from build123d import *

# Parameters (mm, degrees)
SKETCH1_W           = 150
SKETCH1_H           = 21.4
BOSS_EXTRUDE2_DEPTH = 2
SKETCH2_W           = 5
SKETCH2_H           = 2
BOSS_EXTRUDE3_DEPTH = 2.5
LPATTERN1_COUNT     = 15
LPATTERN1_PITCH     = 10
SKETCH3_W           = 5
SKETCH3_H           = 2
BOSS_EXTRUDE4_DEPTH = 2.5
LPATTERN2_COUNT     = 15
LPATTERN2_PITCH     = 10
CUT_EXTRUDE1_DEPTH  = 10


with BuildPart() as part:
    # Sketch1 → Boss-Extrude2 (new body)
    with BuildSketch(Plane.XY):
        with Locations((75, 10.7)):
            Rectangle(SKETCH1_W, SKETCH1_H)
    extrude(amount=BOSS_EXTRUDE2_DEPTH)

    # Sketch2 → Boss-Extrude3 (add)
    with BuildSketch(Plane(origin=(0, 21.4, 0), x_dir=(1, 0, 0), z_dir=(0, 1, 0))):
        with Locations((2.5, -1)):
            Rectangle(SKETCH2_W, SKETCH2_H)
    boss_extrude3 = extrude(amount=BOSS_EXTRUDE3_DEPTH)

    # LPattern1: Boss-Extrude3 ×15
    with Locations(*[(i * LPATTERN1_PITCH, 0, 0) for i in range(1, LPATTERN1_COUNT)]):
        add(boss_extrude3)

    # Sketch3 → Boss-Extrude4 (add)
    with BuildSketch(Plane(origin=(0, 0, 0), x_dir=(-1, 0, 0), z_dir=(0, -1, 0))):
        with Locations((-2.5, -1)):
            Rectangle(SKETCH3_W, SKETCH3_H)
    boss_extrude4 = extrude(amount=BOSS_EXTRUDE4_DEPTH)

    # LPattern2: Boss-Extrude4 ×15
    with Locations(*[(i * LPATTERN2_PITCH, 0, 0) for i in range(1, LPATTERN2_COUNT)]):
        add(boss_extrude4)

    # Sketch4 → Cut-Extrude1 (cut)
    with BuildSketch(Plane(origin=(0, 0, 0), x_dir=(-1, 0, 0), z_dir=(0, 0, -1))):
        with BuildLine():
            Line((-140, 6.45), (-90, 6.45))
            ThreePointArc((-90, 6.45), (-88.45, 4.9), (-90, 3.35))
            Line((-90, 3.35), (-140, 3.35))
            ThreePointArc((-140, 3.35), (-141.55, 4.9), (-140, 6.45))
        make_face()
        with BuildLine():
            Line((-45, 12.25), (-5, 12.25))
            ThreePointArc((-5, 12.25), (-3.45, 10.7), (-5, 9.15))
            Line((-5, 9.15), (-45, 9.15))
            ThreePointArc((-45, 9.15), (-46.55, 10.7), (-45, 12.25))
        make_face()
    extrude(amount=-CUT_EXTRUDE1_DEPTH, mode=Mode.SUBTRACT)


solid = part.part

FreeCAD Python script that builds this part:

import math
import FreeCAD as App
import Part
import Sketcher
Q = App.Units.Quantity


def add_polygon(sketch, points):
    """Adds a closed chain of lines whose ends are joined by coincident constraints."""
    first, n = sketch.GeometryCount, len(points)
    for a, b in zip(points, points[1:] + points[:1]):
        sketch.addGeometry(Part.LineSegment(App.Vector(*a, 0), App.Vector(*b, 0)), False)
    for i in range(n):
        sketch.addConstraint(Sketcher.Constraint("Coincident", first + i, 2, first + (i + 1) % n, 1))

doc = App.newDocument("Part")
params = doc.addObject("Spreadsheet::Sheet", "Params")
for row, (alias, value) in enumerate([
    ("sketch1_width", "150 mm"),
    ("sketch1_height", "21.4 mm"),
    ("pad1_length", "2 mm"),
    ("sketch2_width", "5 mm"),
    ("sketch2_height", "2 mm"),
    ("pad2_length", "2.5 mm"),
    ("linearpattern_pitch", "10 mm"),
    ("sketch3_width", "5 mm"),
    ("sketch3_height", "2 mm"),
    ("pad3_length", "2.5 mm"),
    ("linearpattern2_pitch", "10 mm"),
    ("sketch4_width", "50 mm"),
    ("sketch4_width2", "40 mm"),
    ("sketch4_radius", "1.55 mm"),
    ("pocket1_length", "10 mm"),
], start=1):
    params.set(f"A{row}", alias)
    params.set(f"B{row}", "=" + value)
    params.setAlias(f"B{row}", alias)

body = doc.addObject("PartDesign::Body", "Body")

# Sketch on XY plane
sketch1 = body.newObject("Sketcher::SketchObject", "Sketch")
sketch1.AttachmentSupport = (doc.getObject("XY_Plane"), [""])
sketch1.MapMode = "FlatFace"
add_polygon(sketch1, [(0, 21), (0, 0), (150, 0), (150, 21)])  # lines 0-3
sketch1.addConstraint([
    Sketcher.Constraint("Vertical", 0),
    Sketcher.Constraint("Horizontal", 1),
    Sketcher.Constraint("Vertical", 2),
    Sketcher.Constraint("Horizontal", 3),
    Sketcher.Constraint("Coincident", 0, 2, -1, 1),
    Sketcher.Constraint("DistanceX", 1, 1, 1, 2, Q("150 mm")),
    Sketcher.Constraint("DistanceY", 0, 2, 0, 1, Q("21.4 mm")),
])
sketch1.setExpression("Constraints[9]", "Params.sketch1_width")
sketch1.setExpression("Constraints[10]", "Params.sketch1_height")
pad1 = body.newObject("PartDesign::Pad", "Pad")
pad1.Profile = sketch1
pad1.setExpression("Length", "Params.pad1_length")

# Sketch on XZ plane
sketch2 = body.newObject("Sketcher::SketchObject", "Sketch001")
sketch2.AttachmentSupport = (doc.getObject("XZ_Plane"), [""])
sketch2.MapMode = "FlatFace"
sketch2.AttachmentOffset = App.Placement(App.Vector(0, 0, -21.4), App.Rotation())
add_polygon(sketch2, [(0, 0), (0, 2), (5, 2), (5, 0)])  # lines 0-3
sketch2.addConstraint([
    Sketcher.Constraint("Vertical", 0),
    Sketcher.Constraint("Horizontal", 1),
    Sketcher.Constraint("Vertical", 2),
    Sketcher.Constraint("Horizontal", 3),
    Sketcher.Constraint("Coincident", 3, 2, -1, 1),
    Sketcher.Constraint("DistanceX", 1, 1, 1, 2, Q("5 mm")),
    Sketcher.Constraint("DistanceY", 0, 1, 0, 2, Q("2 mm")),
])
sketch2.setExpression("Constraints[9]", "Params.sketch2_width")
sketch2.setExpression("Constraints[10]", "Params.sketch2_height")
pad2 = body.newObject("PartDesign::Pad", "Pad001")
pad2.Profile = sketch2
pad2.setExpression("Length", "Params.pad2_length")
pad2.Reversed = True
doc.recompute()

linearpattern = body.newObject("PartDesign::LinearPattern", "LinearPattern")
linearpattern.Originals = [pad2]
linearpattern.Direction = (doc.getObject("X_Axis"), [""])
linearpattern.Mode = "offset"
linearpattern.setExpression("Offset", "Params.linearpattern_pitch")
linearpattern.Occurrences = 15
body.Tip = linearpattern

# Sketch on XZ plane
sketch3 = body.newObject("Sketcher::SketchObject", "Sketch002")
sketch3.AttachmentSupport = (doc.getObject("XZ_Plane"), [""])
sketch3.MapMode = "FlatFace"
add_polygon(sketch3, [(5, 0), (5, 2), (0, 2), (0, 0)])  # lines 0-3
sketch3.addConstraint([
    Sketcher.Constraint("Vertical", 0),
    Sketcher.Constraint("Horizontal", 1),
    Sketcher.Constraint("Vertical", 2),
    Sketcher.Constraint("Horizontal", 3),
    Sketcher.Constraint("Coincident", 2, 2, -1, 1),
    Sketcher.Constraint("DistanceX", 1, 2, 1, 1, Q("5 mm")),
    Sketcher.Constraint("DistanceY", 0, 1, 0, 2, Q("2 mm")),
])
sketch3.setExpression("Constraints[9]", "Params.sketch3_width")
sketch3.setExpression("Constraints[10]", "Params.sketch3_height")
pad3 = body.newObject("PartDesign::Pad", "Pad002")
pad3.Profile = sketch3
pad3.setExpression("Length", "Params.pad3_length")
doc.recompute()

linearpattern2 = body.newObject("PartDesign::LinearPattern", "LinearPattern001")
linearpattern2.Originals = [pad3]
linearpattern2.Direction = (doc.getObject("X_Axis"), [""])
linearpattern2.Mode = "offset"
linearpattern2.setExpression("Offset", "Params.linearpattern2_pitch")
linearpattern2.Occurrences = 15
body.Tip = linearpattern2

# Sketch on XY plane
sketch4 = body.newObject("Sketcher::SketchObject", "Sketch003")
sketch4.AttachmentSupport = (doc.getObject("XY_Plane"), [""])
sketch4.MapMode = "FlatFace"
sketch4.addGeometry([
    Part.LineSegment(App.Vector(90, 6.5, 0), App.Vector(140, 6.5, 0)),  # 0
    Part.ArcOfCircle(Part.Circle(App.Vector(140, 4.9, 0), App.Vector(0, 0, 1), 1.6), math.radians(-90), math.radians(90)),  # 1
    Part.LineSegment(App.Vector(140, 3.4, 0), App.Vector(90, 3.4, 0)),  # 2
    Part.ArcOfCircle(Part.Circle(App.Vector(90, 4.9, 0), App.Vector(0, 0, 1), 1.6), math.radians(90), math.radians(270)),  # 3
    Part.LineSegment(App.Vector(5, 12.2, 0), App.Vector(45, 12.2, 0)),  # 4
    Part.ArcOfCircle(Part.Circle(App.Vector(45, 10.7, 0), App.Vector(0, 0, 1), 1.6), math.radians(-90), math.radians(90)),  # 5
    Part.LineSegment(App.Vector(45, 9.2, 0), App.Vector(5, 9.2, 0)),  # 6
    Part.ArcOfCircle(Part.Circle(App.Vector(5, 10.7, 0), App.Vector(0, 0, 1), 1.6), math.radians(90), math.radians(270)),  # 7
], False)
sketch4.addConstraint([
    Sketcher.Constraint("Tangent", 0, 2, 1, 2),
    Sketcher.Constraint("Tangent", 1, 1, 2, 1),
    Sketcher.Constraint("Tangent", 2, 2, 3, 2),
    Sketcher.Constraint("Tangent", 3, 1, 0, 1),
    Sketcher.Constraint("Tangent", 4, 2, 5, 2),
    Sketcher.Constraint("Tangent", 5, 1, 6, 1),
    Sketcher.Constraint("Tangent", 6, 2, 7, 2),
    Sketcher.Constraint("Tangent", 7, 1, 4, 1),
    Sketcher.Constraint("Horizontal", 0),
    Sketcher.Constraint("Horizontal", 2),
    Sketcher.Constraint("Horizontal", 4),
    Sketcher.Constraint("Horizontal", 6),
    Sketcher.Constraint("Equal", 3, 5),
    Sketcher.Constraint("DistanceX", 0, 1, 0, 2, Q("50 mm")),
    Sketcher.Constraint("DistanceX", 4, 1, 4, 2, Q("40 mm")),
    Sketcher.Constraint("Radius", 1, Q("1.55 mm")),
    Sketcher.Constraint("DistanceX", -1, 1, 1, 3, Q("140 mm")),
    Sketcher.Constraint("DistanceX", -1, 1, 5, 3, Q("45 mm")),
    Sketcher.Constraint("DistanceY", -1, 1, 1, 3, Q("4.9 mm")),
    Sketcher.Constraint("DistanceY", -1, 1, 5, 3, Q("10.7 mm")),
])
sketch4.setExpression("Constraints[13]", "Params.sketch4_width")
sketch4.setExpression("Constraints[14]", "Params.sketch4_width2")
sketch4.setExpression("Constraints[15]", "Params.sketch4_radius")
pocket1 = body.newObject("PartDesign::Pocket", "Pocket")
pocket1.Profile = sketch4
pocket1.setExpression("Length", "Params.pocket1_length")
pocket1.Reversed = True

doc.recompute()
